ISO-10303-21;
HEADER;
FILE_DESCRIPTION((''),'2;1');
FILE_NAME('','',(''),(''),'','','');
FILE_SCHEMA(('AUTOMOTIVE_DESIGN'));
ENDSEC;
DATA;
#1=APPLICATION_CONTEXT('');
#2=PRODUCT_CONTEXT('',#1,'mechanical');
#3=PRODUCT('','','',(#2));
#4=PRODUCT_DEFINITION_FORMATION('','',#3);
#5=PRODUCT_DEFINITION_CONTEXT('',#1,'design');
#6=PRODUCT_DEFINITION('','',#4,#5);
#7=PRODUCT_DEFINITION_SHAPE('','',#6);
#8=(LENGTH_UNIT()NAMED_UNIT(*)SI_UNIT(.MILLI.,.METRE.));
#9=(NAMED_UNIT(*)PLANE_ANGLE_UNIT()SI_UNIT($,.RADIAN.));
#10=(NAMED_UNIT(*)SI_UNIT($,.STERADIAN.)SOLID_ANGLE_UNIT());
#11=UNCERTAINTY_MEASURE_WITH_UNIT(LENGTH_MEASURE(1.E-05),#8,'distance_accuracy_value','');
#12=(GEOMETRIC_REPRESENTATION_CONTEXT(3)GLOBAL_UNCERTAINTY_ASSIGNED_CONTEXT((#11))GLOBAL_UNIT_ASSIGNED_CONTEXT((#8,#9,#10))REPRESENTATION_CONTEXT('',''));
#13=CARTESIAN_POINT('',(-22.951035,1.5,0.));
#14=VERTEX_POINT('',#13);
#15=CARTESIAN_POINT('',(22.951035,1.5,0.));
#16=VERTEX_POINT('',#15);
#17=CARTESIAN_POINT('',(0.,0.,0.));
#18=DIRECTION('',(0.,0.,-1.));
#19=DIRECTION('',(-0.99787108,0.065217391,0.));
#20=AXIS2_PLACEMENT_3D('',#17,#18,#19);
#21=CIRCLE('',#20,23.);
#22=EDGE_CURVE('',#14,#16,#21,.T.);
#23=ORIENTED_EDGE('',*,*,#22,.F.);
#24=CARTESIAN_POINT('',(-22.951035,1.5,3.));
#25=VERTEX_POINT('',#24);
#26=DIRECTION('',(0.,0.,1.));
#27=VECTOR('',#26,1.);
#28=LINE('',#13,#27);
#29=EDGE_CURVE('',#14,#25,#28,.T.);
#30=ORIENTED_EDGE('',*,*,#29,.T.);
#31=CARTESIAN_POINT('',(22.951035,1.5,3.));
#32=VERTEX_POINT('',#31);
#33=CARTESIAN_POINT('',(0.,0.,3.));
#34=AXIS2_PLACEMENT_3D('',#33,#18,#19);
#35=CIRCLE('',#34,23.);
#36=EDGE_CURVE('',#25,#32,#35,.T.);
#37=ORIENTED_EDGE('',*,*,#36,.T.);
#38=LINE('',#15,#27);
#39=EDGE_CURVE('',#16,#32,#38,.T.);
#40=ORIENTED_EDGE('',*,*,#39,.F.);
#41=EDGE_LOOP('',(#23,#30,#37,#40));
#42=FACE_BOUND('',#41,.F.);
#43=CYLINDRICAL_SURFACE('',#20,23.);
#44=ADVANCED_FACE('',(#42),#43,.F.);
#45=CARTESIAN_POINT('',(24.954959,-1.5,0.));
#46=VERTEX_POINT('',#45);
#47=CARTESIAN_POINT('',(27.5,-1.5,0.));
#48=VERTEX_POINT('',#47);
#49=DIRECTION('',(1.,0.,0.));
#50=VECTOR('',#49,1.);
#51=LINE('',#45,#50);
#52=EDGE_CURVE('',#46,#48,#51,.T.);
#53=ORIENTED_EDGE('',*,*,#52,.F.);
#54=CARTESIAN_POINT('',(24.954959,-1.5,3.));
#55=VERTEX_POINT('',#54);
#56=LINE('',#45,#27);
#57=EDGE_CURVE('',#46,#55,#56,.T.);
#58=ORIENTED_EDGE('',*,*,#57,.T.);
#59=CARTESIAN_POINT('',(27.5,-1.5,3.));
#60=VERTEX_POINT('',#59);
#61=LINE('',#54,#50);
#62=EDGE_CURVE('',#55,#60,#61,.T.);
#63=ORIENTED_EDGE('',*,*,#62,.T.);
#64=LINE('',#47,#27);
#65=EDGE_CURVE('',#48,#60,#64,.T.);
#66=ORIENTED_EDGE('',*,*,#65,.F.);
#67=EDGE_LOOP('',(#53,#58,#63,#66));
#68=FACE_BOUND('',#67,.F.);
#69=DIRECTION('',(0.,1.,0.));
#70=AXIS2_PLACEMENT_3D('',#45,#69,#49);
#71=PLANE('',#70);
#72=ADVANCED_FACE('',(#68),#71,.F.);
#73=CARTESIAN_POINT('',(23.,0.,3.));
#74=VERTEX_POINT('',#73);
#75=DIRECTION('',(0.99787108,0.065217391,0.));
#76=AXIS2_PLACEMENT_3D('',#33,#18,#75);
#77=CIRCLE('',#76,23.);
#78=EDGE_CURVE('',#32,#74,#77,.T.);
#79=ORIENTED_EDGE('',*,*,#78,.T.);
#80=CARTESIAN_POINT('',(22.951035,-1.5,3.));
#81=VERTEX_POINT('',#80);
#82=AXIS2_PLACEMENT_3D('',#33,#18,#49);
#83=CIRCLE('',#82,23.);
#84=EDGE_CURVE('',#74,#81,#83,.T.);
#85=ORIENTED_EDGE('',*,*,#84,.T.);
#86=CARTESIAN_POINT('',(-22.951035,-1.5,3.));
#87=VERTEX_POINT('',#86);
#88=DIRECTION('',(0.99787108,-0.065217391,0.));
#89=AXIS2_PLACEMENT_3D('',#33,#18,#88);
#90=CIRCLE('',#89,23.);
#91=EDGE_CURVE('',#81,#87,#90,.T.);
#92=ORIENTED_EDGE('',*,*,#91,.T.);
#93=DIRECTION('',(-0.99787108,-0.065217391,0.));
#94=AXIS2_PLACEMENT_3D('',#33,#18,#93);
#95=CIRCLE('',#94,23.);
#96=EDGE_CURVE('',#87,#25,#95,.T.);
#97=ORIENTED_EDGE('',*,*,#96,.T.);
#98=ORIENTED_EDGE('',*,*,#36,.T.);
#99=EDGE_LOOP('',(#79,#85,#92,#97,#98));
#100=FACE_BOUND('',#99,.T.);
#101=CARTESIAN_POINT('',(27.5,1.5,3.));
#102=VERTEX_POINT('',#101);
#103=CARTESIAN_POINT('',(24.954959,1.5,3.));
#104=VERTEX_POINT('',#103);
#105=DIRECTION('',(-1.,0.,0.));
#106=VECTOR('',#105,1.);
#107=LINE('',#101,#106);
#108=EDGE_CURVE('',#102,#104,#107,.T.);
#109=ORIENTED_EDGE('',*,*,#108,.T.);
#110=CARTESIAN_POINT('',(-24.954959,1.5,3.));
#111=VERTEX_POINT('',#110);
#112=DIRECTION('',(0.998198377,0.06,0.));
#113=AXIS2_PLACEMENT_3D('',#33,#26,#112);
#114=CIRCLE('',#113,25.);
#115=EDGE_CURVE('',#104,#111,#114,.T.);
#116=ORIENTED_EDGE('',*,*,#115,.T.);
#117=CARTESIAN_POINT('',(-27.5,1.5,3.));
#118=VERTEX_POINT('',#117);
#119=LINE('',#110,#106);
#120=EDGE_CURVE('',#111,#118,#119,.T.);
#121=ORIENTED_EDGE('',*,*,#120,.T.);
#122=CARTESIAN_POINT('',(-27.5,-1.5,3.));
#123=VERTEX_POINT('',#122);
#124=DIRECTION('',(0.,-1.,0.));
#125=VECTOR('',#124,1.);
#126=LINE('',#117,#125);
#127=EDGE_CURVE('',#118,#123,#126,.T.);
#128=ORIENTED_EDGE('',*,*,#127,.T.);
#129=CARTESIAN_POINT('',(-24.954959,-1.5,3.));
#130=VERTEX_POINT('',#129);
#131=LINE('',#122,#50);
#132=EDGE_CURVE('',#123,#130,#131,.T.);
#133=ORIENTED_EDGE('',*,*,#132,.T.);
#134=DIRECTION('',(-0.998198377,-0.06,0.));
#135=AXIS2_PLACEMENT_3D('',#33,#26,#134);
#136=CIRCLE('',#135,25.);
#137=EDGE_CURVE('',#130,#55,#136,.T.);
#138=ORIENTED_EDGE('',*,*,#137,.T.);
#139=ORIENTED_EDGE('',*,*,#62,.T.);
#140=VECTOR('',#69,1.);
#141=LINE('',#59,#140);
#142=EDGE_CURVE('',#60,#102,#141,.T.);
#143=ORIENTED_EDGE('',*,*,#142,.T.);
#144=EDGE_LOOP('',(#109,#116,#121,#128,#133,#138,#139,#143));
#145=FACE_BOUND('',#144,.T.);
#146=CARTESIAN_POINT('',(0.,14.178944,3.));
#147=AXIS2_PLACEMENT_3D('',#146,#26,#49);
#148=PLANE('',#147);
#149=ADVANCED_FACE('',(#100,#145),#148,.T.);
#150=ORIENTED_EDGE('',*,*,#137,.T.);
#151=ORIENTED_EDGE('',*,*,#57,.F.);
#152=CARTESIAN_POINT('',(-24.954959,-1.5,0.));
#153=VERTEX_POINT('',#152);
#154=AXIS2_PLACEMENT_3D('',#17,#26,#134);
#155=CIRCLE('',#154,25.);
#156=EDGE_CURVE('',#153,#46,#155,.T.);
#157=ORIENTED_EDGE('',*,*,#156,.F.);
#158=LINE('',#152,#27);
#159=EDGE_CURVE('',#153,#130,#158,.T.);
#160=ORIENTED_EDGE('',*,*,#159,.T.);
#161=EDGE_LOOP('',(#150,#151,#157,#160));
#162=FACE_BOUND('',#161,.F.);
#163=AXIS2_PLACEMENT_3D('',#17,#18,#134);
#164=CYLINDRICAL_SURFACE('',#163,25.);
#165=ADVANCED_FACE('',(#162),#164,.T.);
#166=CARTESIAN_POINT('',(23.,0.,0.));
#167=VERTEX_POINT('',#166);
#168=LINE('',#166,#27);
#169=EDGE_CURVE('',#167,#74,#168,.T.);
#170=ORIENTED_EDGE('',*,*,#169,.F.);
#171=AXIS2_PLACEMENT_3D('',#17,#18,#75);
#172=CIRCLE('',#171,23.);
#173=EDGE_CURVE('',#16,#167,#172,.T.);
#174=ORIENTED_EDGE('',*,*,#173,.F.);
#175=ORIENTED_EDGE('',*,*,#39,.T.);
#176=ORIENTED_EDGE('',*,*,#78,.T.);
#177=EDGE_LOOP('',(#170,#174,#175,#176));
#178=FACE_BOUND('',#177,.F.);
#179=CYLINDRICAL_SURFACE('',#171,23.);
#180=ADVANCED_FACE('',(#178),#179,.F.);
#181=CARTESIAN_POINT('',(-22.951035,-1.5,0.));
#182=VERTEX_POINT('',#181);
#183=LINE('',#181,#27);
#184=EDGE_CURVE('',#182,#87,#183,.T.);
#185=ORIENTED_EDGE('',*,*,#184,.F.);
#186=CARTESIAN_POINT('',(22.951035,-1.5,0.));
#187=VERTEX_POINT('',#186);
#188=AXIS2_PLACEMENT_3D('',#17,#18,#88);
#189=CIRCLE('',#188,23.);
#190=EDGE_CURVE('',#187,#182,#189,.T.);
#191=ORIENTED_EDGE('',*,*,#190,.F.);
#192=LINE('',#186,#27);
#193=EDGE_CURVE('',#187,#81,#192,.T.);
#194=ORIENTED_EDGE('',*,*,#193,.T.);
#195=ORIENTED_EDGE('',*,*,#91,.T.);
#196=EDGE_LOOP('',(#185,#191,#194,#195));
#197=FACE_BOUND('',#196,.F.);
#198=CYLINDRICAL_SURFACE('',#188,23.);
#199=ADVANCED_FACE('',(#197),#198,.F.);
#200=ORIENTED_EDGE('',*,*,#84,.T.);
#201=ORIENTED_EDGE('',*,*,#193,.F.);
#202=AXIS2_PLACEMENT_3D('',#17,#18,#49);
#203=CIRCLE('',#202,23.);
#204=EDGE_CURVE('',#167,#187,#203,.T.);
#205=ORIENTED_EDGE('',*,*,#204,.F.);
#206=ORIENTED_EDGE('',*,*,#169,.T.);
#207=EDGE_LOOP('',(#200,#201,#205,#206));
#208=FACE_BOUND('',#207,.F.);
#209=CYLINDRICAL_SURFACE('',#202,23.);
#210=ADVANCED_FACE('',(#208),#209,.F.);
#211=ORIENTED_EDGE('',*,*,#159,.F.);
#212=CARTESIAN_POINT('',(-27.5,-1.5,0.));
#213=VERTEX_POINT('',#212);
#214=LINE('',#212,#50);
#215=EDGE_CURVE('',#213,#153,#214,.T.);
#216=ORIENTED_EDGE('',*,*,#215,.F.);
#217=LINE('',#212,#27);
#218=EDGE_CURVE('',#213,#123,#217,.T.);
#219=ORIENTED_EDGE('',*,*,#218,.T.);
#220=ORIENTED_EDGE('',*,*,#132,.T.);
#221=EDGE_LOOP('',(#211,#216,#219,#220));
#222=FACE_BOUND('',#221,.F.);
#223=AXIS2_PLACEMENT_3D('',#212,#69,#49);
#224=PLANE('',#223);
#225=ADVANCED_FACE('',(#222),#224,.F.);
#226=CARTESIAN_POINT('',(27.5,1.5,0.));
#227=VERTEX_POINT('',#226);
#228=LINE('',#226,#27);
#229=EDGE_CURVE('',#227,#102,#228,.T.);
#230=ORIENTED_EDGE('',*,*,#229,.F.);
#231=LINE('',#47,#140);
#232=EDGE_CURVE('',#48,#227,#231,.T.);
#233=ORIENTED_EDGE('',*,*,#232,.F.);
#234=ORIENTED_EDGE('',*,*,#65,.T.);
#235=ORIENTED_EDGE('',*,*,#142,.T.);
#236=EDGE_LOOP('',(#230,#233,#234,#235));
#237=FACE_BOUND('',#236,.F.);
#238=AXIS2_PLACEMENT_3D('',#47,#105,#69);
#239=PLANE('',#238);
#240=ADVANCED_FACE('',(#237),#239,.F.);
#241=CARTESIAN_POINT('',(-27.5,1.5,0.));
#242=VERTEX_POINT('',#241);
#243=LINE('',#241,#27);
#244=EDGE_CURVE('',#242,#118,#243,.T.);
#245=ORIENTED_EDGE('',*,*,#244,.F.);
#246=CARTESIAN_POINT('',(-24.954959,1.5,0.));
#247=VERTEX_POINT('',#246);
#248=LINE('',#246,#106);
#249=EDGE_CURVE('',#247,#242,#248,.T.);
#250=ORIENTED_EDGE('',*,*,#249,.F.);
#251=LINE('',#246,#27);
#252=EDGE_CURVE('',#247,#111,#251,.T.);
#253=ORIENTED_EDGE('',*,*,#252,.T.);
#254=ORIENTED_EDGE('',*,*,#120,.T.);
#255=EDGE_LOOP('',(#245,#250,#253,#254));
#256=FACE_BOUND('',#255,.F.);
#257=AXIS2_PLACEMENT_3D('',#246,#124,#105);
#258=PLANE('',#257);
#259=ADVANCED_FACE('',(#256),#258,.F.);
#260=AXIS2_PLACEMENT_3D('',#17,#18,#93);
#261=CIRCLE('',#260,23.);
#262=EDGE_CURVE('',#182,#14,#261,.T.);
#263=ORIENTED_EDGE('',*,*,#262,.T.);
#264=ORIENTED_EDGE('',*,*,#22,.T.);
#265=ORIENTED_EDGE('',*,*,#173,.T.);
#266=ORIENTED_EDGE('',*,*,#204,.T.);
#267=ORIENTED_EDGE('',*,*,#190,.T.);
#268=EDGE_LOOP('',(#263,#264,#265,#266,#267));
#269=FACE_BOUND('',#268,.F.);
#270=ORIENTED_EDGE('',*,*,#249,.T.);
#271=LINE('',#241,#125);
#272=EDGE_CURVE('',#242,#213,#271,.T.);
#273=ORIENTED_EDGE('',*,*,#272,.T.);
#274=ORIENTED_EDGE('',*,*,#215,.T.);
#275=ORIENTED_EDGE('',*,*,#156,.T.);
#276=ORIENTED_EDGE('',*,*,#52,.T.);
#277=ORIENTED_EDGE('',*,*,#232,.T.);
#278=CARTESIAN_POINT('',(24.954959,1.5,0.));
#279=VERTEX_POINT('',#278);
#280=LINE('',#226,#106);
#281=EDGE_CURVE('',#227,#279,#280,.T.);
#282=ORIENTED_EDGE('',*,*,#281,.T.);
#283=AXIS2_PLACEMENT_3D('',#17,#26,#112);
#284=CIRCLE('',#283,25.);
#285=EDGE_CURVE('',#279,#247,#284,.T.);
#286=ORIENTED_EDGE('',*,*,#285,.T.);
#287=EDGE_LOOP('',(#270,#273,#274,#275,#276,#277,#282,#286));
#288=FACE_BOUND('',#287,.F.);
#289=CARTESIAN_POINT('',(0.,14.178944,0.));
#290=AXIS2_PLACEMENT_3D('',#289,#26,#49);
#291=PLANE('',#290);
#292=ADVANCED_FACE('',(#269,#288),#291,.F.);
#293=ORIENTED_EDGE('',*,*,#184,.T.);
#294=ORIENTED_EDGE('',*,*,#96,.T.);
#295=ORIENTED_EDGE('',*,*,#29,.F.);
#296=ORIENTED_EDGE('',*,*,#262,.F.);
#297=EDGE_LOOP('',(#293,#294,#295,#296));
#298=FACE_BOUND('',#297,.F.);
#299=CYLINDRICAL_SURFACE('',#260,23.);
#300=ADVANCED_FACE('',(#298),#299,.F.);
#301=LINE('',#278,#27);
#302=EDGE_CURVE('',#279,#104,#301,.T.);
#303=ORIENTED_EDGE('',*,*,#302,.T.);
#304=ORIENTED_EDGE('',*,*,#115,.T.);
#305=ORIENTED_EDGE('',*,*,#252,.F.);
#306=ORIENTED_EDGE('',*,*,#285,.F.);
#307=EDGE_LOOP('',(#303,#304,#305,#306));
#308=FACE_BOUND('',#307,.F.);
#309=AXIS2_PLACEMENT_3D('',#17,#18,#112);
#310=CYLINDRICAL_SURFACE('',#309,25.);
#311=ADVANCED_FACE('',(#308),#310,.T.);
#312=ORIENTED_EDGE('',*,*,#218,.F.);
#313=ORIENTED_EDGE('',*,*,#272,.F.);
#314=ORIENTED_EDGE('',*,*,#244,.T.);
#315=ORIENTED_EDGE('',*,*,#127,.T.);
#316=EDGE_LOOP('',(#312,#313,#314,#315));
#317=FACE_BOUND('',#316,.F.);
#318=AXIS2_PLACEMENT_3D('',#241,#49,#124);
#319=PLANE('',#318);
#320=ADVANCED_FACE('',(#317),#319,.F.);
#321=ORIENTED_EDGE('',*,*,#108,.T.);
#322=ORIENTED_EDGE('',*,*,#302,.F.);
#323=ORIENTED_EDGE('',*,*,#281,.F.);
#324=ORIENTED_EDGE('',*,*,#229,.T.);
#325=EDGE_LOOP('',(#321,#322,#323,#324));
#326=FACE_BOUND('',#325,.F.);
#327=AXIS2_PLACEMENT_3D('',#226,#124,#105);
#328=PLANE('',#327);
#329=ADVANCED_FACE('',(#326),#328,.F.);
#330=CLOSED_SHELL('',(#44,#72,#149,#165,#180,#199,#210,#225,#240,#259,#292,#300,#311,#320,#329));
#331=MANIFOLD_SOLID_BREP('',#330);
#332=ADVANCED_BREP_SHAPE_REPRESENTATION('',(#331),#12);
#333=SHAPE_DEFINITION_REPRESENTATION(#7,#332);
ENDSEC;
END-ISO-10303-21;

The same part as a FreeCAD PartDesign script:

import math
import FreeCAD as App
import Part
import Sketcher

V = App.Vector
Q = App.Units.Quantity

doc = App.newDocument("Part")
body = doc.addObject("PartDesign::Body", "Body")

# Sketch on XY plane
sketch1 = body.newObject("Sketcher::SketchObject", "Sketch")
sketch1.AttachmentSupport = (doc.getObject("XY_Plane"), [""])
sketch1.MapMode = "FlatFace"
sketch1.addGeometry(Part.ArcOfCircle(Part.Circle(V(0, 0, 0), V(0, 0, 1), 25), math.radians(3.439813), math.radians(176.560187)), False)
sketch1.addGeometry(Part.LineSegment(V(-24.954959, 1.5, 0), V(-27.5, 1.5, 0)), False)
sketch1.addGeometry(Part.LineSegment(V(-27.5, 1.5, 0), V(-27.5, -1.5, 0)), False)
sketch1.addGeometry(Part.LineSegment(V(-27.5, -1.5, 0), V(-24.954959, -1.5, 0)), False)
sketch1.addGeometry(Part.ArcOfCircle(Part.Circle(V(0, 0, 0), V(0, 0, 1), 25), math.radians(-176.560187), math.radians(-3.439813)), False)
sketch1.addGeometry(Part.LineSegment(V(24.954959, -1.5, 0), V(27.5, -1.5, 0)), False)
sketch1.addGeometry(Part.LineSegment(V(27.5, -1.5, 0), V(27.5, 1.5, 0)), False)
sketch1.addGeometry(Part.LineSegment(V(27.5, 1.5, 0), V(24.954959, 1.5, 0)), False)
sketch1.addGeometry(Part.ArcOfCircle(Part.Circle(V(0, 0, 0), V(0, 0, 1), 23), math.radians(-176.260665), math.radians(-3.739335)), False)
sketch1.addGeometry(Part.ArcOfCircle(Part.Circle(V(0, 0, 0), V(0, 0, 1), 23), math.radians(176.260665), math.radians(183.739335)), False)
sketch1.addGeometry(Part.ArcOfCircle(Part.Circle(V(0, 0, 0), V(0, 0, 1), 23), math.radians(3.739335), math.radians(176.260665)), False)
sketch1.addGeometry(Part.ArcOfCircle(Part.Circle(V(0, 0, 0), V(0, 0, 1), 23), math.radians(0), math.radians(3.739335)), False)
sketch1.addGeometry(Part.ArcOfCircle(Part.Circle(V(0, 0, 0), V(0, 0, 1), 23), math.radians(-3.739335), math.radians(0)), False)
sketch1.addConstraint(Sketcher.Constraint("Coincident", 0, 2, 1, 1))
sketch1.addConstraint(Sketcher.Constraint("Coincident", 1, 2, 2, 1))
sketch1.addConstraint(Sketcher.Constraint("Coincident", 2, 2, 3, 1))
sketch1.addConstraint(Sketcher.Constraint("Coincident", 3, 2, 4, 1))
sketch1.addConstraint(Sketcher.Constraint("Coincident", 4, 2, 5, 1))
sketch1.addConstraint(Sketcher.Constraint("Coincident", 5, 2, 6, 1))
sketch1.addConstraint(Sketcher.Constraint("Coincident", 6, 2, 7, 1))
sketch1.addConstraint(Sketcher.Constraint("Coincident", 7, 2, 0, 1))
sketch1.addConstraint(Sketcher.Constraint("Tangent", 8, 1, 9, 2))
sketch1.addConstraint(Sketcher.Constraint("Tangent", 9, 1, 10, 2))
sketch1.addConstraint(Sketcher.Constraint("Tangent", 10, 1, 11, 2))
sketch1.addConstraint(Sketcher.Constraint("Tangent", 11, 1, 12, 2))
sketch1.addConstraint(Sketcher.Constraint("Tangent", 12, 1, 8, 2))
sketch1.addConstraint(Sketcher.Constraint("Horizontal", 1))
sketch1.addConstraint(Sketcher.Constraint("Vertical", 2))
sketch1.addConstraint(Sketcher.Constraint("Horizontal", 3))
sketch1.addConstraint(Sketcher.Constraint("Horizontal", 5))
sketch1.addConstraint(Sketcher.Constraint("Vertical", 6))
sketch1.addConstraint(Sketcher.Constraint("Horizontal", 7))
sketch1.addConstraint(Sketcher.Constraint("Coincident", 0, 3, -1, 1))
sketch1.addConstraint(Sketcher.Constraint("Coincident", 4, 3, -1, 1))
sketch1.addConstraint(Sketcher.Constraint("Coincident", 8, 3, -1, 1))
sketch1.addConstraint(Sketcher.Constraint("Coincident", 11, 3, -1, 1))
sketch1.addConstraint(Sketcher.Constraint("Equal", 0, 4))
sketch1.addConstraint(Sketcher.Constraint("Symmetric", 1, 2, 5, 2, -1, 1))
sketch1.addConstraint(Sketcher.Constraint("PointOnObject", 11, 1, -1))
sketch1.addConstraint(Sketcher.Constraint("Horizontal", 3, 2, 4, 2))
sketch1.addConstraint(Sketcher.Constraint("Horizontal", 1, 2, 6, 2))
sketch1.addConstraint(Sketcher.Constraint("Horizontal", 5, 2, 8, 1))
sketch1.addConstraint(Sketcher.Constraint("Horizontal", 7, 2, 9, 1))
sketch1.addConstraint(Sketcher.Constraint("Horizontal", 9, 1, 10, 1))
sketch1.addConstraint(Sketcher.Constraint("Horizontal", 8, 1, 12, 1))
sketch1.addConstraint(Sketcher.Constraint("Radius", 0, Q("25 mm")))
sketch1.addConstraint(Sketcher.Constraint("Radius", 8, Q("23 mm")))
sketch1.addConstraint(Sketcher.Constraint("DistanceY", 2, 2, 2, 1, Q("3 mm")))
sketch1.addConstraint(Sketcher.Constraint("DistanceX", 1, 2, -1, 1, Q("27.5 mm")))
pad1 = body.newObject("PartDesign::Pad", "Pad")
pad1.Profile = sketch1
pad1.Length = 3

doc.recompute()
